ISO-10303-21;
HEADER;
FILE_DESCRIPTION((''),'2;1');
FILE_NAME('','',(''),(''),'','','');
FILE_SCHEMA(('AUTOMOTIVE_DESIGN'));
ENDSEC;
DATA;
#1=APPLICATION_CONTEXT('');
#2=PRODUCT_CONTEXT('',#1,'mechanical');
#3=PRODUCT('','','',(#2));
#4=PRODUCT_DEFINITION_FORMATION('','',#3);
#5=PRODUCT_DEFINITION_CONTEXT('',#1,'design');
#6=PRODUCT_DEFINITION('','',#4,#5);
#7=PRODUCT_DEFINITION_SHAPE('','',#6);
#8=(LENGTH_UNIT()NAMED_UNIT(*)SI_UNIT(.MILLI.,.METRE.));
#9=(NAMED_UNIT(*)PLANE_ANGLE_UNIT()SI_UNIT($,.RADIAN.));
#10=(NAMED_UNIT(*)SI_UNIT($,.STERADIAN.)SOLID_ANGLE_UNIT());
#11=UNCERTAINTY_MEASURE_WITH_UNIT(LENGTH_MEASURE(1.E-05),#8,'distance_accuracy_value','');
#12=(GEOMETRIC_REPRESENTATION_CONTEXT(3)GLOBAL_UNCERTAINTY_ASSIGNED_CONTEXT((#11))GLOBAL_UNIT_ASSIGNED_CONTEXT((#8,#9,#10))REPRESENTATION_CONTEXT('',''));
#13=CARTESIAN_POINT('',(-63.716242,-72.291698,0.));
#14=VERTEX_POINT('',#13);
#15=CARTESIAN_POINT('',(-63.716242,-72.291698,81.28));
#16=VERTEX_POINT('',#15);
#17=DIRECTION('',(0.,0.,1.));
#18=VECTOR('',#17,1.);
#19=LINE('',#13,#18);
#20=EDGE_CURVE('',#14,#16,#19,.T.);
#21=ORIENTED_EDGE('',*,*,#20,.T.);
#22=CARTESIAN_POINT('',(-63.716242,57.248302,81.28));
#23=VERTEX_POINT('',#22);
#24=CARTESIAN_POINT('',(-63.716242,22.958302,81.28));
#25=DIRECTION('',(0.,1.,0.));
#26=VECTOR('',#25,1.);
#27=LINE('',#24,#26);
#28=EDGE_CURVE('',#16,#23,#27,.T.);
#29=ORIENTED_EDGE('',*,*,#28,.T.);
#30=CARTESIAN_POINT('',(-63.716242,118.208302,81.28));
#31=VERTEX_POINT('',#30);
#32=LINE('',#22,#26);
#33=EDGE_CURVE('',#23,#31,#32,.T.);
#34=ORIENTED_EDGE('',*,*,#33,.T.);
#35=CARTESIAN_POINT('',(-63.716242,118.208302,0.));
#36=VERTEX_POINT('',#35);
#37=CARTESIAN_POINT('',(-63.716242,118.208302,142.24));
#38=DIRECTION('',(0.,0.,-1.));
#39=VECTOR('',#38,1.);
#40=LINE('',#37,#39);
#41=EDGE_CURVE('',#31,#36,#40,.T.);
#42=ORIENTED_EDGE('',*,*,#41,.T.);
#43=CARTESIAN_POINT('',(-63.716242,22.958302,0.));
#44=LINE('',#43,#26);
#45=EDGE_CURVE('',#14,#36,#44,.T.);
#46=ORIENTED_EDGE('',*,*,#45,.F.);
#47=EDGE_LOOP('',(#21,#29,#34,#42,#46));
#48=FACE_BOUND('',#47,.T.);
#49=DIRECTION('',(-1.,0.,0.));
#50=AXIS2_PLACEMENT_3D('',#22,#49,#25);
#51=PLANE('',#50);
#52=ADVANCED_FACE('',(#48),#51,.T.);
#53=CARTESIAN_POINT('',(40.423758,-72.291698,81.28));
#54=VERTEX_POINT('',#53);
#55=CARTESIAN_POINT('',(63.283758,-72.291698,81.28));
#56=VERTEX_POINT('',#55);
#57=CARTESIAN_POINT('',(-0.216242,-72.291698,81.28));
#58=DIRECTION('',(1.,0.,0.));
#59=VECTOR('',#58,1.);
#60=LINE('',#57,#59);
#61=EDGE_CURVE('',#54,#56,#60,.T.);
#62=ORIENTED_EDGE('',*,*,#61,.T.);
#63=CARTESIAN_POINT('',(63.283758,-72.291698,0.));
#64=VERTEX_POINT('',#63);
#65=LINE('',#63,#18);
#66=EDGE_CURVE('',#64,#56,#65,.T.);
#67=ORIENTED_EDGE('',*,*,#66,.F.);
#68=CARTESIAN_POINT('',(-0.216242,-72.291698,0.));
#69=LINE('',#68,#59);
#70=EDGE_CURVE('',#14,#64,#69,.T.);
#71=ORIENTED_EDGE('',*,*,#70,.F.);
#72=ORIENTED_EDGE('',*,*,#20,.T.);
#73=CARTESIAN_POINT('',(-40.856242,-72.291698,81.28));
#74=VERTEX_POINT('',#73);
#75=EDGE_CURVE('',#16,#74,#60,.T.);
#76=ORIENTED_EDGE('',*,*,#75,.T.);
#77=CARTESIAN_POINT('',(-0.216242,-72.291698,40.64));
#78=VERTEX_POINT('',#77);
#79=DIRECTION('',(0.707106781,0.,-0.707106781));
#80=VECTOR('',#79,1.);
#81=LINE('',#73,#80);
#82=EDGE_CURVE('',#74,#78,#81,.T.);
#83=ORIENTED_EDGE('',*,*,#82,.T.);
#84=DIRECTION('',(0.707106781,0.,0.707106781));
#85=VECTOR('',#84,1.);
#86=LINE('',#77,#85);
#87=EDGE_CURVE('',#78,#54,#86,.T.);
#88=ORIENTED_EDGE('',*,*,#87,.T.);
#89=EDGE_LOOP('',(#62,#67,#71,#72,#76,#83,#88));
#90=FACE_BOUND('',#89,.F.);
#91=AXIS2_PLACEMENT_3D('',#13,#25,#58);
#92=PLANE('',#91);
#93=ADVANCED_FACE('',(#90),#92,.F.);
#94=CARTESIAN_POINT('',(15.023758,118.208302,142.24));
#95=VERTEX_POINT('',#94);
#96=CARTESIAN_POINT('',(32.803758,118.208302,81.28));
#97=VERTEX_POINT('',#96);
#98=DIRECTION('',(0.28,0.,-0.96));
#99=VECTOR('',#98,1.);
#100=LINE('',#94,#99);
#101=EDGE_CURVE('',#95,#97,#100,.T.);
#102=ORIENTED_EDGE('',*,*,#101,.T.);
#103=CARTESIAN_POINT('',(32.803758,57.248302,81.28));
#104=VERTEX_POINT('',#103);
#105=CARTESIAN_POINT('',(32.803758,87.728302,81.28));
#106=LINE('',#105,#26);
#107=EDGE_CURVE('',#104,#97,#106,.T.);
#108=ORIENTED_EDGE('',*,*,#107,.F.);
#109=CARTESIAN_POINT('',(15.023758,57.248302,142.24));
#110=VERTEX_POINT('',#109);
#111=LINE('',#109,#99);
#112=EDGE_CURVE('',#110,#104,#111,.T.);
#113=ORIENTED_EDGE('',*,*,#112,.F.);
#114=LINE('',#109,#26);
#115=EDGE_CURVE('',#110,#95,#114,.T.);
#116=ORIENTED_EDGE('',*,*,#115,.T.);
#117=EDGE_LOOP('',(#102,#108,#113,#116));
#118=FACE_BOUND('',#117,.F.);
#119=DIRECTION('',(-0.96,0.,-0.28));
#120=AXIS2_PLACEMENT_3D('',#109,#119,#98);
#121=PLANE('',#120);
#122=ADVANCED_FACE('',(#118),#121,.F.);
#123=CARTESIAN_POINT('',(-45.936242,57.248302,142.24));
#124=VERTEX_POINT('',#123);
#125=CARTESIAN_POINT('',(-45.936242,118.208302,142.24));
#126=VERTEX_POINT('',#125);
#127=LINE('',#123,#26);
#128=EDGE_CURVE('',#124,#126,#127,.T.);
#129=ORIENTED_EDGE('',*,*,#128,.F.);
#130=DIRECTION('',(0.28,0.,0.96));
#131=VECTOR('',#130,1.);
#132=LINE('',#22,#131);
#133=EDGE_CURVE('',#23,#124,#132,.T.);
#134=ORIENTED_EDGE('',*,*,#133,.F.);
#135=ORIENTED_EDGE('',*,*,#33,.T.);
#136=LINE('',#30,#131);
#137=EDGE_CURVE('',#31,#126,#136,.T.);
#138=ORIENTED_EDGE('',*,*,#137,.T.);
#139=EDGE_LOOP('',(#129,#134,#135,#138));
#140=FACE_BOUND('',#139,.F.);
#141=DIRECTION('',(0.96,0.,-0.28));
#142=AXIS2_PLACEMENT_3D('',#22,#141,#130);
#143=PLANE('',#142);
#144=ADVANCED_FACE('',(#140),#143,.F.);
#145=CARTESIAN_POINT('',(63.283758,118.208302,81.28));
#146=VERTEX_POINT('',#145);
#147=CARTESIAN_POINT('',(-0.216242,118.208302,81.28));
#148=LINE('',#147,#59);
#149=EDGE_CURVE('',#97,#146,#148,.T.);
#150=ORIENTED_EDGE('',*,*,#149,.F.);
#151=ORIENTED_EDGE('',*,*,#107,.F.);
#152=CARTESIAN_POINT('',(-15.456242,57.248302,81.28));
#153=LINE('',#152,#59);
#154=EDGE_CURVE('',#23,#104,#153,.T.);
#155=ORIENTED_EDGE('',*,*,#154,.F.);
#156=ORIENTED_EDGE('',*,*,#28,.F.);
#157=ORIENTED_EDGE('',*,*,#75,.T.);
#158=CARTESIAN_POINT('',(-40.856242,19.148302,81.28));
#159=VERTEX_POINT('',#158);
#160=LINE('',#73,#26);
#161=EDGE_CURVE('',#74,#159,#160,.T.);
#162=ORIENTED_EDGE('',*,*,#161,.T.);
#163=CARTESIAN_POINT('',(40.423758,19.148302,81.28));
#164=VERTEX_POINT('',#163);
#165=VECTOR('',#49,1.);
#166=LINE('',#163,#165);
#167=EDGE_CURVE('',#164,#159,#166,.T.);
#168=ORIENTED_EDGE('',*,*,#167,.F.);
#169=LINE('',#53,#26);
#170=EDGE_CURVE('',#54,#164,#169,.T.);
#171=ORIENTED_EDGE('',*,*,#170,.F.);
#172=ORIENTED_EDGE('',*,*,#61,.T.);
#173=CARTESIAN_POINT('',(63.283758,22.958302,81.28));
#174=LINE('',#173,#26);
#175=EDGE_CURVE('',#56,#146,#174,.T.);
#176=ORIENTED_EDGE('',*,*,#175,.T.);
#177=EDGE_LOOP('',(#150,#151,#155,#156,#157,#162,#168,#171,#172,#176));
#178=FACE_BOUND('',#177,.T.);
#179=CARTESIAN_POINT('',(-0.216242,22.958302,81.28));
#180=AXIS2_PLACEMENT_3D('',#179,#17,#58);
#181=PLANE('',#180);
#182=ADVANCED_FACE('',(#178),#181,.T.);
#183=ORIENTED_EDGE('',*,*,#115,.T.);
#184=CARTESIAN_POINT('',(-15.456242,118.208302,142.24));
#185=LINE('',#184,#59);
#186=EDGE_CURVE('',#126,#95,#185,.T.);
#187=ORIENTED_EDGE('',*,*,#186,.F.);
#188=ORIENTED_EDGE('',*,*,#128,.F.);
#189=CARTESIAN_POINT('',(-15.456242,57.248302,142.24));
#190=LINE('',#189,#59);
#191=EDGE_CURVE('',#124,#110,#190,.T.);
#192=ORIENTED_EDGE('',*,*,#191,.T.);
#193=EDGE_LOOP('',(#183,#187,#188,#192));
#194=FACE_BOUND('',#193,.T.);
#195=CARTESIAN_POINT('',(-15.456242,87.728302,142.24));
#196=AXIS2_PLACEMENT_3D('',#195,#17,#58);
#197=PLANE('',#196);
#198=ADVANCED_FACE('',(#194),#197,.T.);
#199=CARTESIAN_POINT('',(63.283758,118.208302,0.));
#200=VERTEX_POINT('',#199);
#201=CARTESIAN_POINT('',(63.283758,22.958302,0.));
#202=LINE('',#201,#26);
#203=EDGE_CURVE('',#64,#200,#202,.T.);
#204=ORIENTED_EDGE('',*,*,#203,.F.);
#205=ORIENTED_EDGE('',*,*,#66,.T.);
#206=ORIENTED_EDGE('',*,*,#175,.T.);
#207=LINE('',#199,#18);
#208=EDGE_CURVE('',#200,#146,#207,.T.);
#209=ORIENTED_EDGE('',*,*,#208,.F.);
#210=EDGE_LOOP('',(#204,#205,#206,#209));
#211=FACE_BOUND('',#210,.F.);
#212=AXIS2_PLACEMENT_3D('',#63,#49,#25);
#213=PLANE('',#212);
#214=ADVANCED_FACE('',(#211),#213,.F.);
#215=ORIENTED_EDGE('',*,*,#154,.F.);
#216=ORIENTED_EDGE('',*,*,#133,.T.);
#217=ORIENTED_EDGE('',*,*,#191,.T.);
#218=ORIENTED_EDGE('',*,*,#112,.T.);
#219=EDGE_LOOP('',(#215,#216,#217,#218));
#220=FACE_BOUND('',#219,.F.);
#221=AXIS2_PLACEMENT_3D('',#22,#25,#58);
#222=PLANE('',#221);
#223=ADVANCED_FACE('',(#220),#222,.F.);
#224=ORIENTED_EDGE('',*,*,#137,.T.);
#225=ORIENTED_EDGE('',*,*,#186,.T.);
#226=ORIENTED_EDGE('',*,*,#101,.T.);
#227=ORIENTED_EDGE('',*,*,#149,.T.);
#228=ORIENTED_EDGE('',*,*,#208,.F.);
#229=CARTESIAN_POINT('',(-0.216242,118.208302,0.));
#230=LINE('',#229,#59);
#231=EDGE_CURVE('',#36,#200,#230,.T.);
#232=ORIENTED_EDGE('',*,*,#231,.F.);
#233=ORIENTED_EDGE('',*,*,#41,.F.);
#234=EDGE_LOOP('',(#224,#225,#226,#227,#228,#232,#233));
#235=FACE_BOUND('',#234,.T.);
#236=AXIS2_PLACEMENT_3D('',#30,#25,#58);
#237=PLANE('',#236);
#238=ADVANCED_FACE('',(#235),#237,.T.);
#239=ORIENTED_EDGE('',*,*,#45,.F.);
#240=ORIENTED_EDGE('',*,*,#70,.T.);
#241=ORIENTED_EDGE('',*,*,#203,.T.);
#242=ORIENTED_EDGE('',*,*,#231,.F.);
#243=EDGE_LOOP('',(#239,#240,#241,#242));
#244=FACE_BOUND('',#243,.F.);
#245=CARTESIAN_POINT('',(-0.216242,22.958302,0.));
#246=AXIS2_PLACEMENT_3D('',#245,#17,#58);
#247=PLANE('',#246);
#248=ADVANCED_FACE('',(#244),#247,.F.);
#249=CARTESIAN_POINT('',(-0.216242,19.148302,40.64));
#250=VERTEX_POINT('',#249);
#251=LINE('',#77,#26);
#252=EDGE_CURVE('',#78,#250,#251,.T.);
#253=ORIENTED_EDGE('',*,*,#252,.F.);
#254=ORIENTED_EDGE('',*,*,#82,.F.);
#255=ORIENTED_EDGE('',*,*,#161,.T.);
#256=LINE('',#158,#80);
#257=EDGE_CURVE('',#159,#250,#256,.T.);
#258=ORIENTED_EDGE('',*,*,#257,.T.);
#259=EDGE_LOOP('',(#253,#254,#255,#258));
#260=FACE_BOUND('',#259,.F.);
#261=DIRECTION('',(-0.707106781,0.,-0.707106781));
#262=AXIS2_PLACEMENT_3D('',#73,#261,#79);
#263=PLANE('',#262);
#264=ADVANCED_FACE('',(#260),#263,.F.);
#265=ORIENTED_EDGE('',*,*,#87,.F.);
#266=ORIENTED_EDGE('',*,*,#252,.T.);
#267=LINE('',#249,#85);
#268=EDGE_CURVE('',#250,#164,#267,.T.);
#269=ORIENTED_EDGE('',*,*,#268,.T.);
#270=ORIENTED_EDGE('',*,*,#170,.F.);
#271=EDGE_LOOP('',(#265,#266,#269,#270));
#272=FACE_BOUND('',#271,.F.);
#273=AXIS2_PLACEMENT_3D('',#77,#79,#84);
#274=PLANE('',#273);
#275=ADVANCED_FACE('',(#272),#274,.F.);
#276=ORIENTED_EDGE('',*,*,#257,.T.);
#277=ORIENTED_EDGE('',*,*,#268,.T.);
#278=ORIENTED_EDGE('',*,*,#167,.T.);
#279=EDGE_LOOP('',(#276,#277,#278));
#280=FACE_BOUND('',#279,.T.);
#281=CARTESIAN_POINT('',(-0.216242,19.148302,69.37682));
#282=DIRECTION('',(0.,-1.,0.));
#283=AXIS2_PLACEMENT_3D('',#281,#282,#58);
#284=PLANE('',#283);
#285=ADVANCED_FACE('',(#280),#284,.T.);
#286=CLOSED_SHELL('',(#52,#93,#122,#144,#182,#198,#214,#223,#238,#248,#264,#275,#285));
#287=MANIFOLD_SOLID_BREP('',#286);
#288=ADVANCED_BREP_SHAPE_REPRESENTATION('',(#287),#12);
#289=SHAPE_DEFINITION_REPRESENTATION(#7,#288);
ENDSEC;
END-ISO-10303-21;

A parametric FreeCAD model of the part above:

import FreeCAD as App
import Part
import Sketcher

V = App.Vector
Q = App.Units.Quantity

doc = App.newDocument("Part")
body = doc.addObject("PartDesign::Body", "Body")

# Sketch on XY plane
sketch1 = doc.addObject("Sketcher::SketchObject", "Sketch")
body.addObject(sketch1)
sketch1.AttachmentSupport = (doc.XY_Plane, [""])
sketch1.MapMode = "FlatFace"
sketch1.addGeometry(Part.LineSegment(V(-63.716242, 118.208302, 0), V(-63.716242, -72.291698, 0)), False)
sketch1.addGeometry(Part.LineSegment(V(-63.716242, -72.291698, 0), V(63.283758, -72.291698, 0)), False)
sketch1.addGeometry(Part.LineSegment(V(63.283758, -72.291698, 0), V(63.283758, 118.208302, 0)), False)
sketch1.addGeometry(Part.LineSegment(V(63.283758, 118.208302, 0), V(-63.716242, 118.208302, 0)), False)
sketch1.addConstraint(Sketcher.Constraint("Coincident", 0, 2, 1, 1))
sketch1.addConstraint(Sketcher.Constraint("Coincident", 1, 2, 2, 1))
sketch1.addConstraint(Sketcher.Constraint("Coincident", 2, 2, 3, 1))
sketch1.addConstraint(Sketcher.Constraint("Coincident", 3, 2, 0, 1))
sketch1.addConstraint(Sketcher.Constraint("Vertical", 0))
sketch1.addConstraint(Sketcher.Constraint("Horizontal", 1))
sketch1.addConstraint(Sketcher.Constraint("Vertical", 2))
sketch1.addConstraint(Sketcher.Constraint("Horizontal", 3))
sketch1.addConstraint(Sketcher.Constraint("DistanceX", 1, 1, 1, 2, Q("5 in")))
sketch1.addConstraint(Sketcher.Constraint("DistanceY", 0, 2, 0, 1, Q("7.5 in")))
sketch1.addConstraint(Sketcher.Constraint("DistanceX", 0, 2, -1, 1, Q("63.716242 mm")))
sketch1.addConstraint(Sketcher.Constraint("DistanceY", 0, 2, -1, 1, Q("72.291698 mm")))
pad1 = doc.addObject("PartDesign::Pad", "Pad")
body.addObject(pad1)
pad1.Profile = sketch1
pad1.Length = Q("3.2 in")

# Sketch on XZ plane
sketch2 = doc.addObject("Sketcher::SketchObject", "Sketch001")
body.addObject(sketch2)
sketch2.AttachmentSupport = (doc.XZ_Plane, [""])
sketch2.MapMode = "FlatFace"
sketch2.AttachmentOffset = App.Placement(V(0, 0, 72.291698), App.Rotation())
sketch2.addGeometry(Part.LineSegment(V(40.423758, 81.28, 0), V(-40.856242, 81.28, 0)), False)
sketch2.addGeometry(Part.LineSegment(V(-40.856242, 81.28, 0), V(-0.216242, 40.64, 0)), False)
sketch2.addGeometry(Part.LineSegment(V(-0.216242, 40.64, 0), V(40.423758, 81.28, 0)), False)
sketch2.addConstraint(Sketcher.Constraint("Coincident", 0, 2, 1, 1))
sketch2.addConstraint(Sketcher.Constraint("Coincident", 1, 2, 2, 1))
sketch2.addConstraint(Sketcher.Constraint("Coincident", 2, 2, 0, 1))
sketch2.addConstraint(Sketcher.Constraint("Horizontal", 0))
sketch2.addConstraint(Sketcher.Constraint("Perpendicular", 1, 2))
sketch2.addConstraint(Sketcher.Constraint("Equal", 1, 2))
sketch2.addConstraint(Sketcher.Constraint("DistanceX", 0, 2, 0, 1, Q("3.2 in")))
sketch2.addConstraint(Sketcher.Constraint("DistanceY", -1, 1, 0, 2, Q("3.2 in")))
sketch2.addConstraint(Sketcher.Constraint("DistanceX", 0, 2, -1, 1, Q("40.856242 mm")))
pocket1 = doc.addObject("PartDesign::Pocket", "Pocket")
body.addObject(pocket1)
pocket1.Profile = sketch2
pocket1.Length = Q("3.6 in")

# Sketch on XY plane
sketch3 = doc.addObject("Sketcher::SketchObject", "Sketch002")
body.addObject(sketch3)
sketch3.AttachmentSupport = (doc.XY_Plane, [""])
sketch3.MapMode = "FlatFace"
sketch3.AttachmentOffset = App.Placement(V(0, 0, 3.2 * 25.4), App.Rotation())
sketch3.addGeometry(Part.LineSegment(V(-63.716242, 118.208302, 0), V(-63.716242, 57.248302, 0)), False)
sketch3.addGeometry(Part.LineSegment(V(-63.716242, 57.248302, 0), V(32.803758, 57.248302, 0)), False)
sketch3.addGeometry(Part.LineSegment(V(32.803758, 57.248302, 0), V(32.803758, 118.208302, 0)), False)
sketch3.addGeometry(Part.LineSegment(V(32.803758, 118.208302, 0), V(-63.716242, 118.208302, 0)), False)
sketch3.addConstraint(Sketcher.Constraint("Coincident", 0, 2, 1, 1))
sketch3.addConstraint(Sketcher.Constraint("Coincident", 1, 2, 2, 1))
sketch3.addConstraint(Sketcher.Constraint("Coincident", 2, 2, 3, 1))
sketch3.addConstraint(Sketcher.Constraint("Coincident", 3, 2, 0, 1))
sketch3.addConstraint(Sketcher.Constraint("Vertical", 0))
sketch3.addConstraint(Sketcher.Constraint("Horizontal", 1))
sketch3.addConstraint(Sketcher.Constraint("Vertical", 2))
sketch3.addConstraint(Sketcher.Constraint("Horizontal", 3))
sketch3.addConstraint(Sketcher.Constraint("DistanceX", 1, 1, 1, 2, Q("3.8 in")))
sketch3.addConstraint(Sketcher.Constraint("DistanceY", 0, 2, 0, 1, Q("2.4 in")))
sketch3.addConstraint(Sketcher.Constraint("DistanceX", -1, 1, 1, 2, Q("32.803758 mm")))
sketch3.addConstraint(Sketcher.Constraint("DistanceY", -1, 1, 0, 2, Q("57.248302 mm")))
pad2 = doc.addObject("PartDesign::Pad", "Pad001")
body.addObject(pad2)
pad2.Profile = sketch3
pad2.Length = Q("2.4 in")

# Sketch on XZ plane
sketch4 = doc.addObject("Sketcher::SketchObject", "Sketch003")
body.addObject(sketch4)
sketch4.AttachmentSupport = (doc.XZ_Plane, [""])
sketch4.MapMode = "FlatFace"
sketch4.AttachmentOffset = App.Placement(V(0, 0, -57.248302), App.Rotation())
sketch4.addGeometry(Part.LineSegment(V(-63.716242, 142.24, 0), V(-63.716242, 81.28, 0)), False)
sketch4.addGeometry(Part.LineSegment(V(-63.716242, 81.28, 0), V(-45.936242, 142.24, 0)), False)
sketch4.addGeometry(Part.LineSegment(V(-45.936242, 142.24, 0), V(-63.716242, 142.24, 0)), False)
sketch4.addGeometry(Part.LineSegment(V(15.023758, 142.24, 0), V(32.803758, 81.28, 0)), False)
sketch4.addGeometry(Part.LineSegment(V(32.803758, 81.28, 0), V(32.803758, 142.24, 0)), False)
sketch4.addGeometry(Part.LineSegment(V(32.803758, 142.24, 0), V(15.023758, 142.24, 0)), False)
sketch4.addConstraint(Sketcher.Constraint("Coincident", 0, 2, 1, 1))
sketch4.addConstraint(Sketcher.Constraint("Coincident", 1, 2, 2, 1))
sketch4.addConstraint(Sketcher.Constraint("Coincident", 2, 2, 0, 1))
sketch4.addConstraint(Sketcher.Constraint("Coincident", 3, 2, 4, 1))
sketch4.addConstraint(Sketcher.Constraint("Coincident", 4, 2, 5, 1))
sketch4.addConstraint(Sketcher.Constraint("Coincident", 5, 2, 3, 1))
sketch4.addConstraint(Sketcher.Constraint("Vertical", 0))
sketch4.addConstraint(Sketcher.Constraint("Horizontal", 2))
sketch4.addConstraint(Sketcher.Constraint("Vertical", 4))
sketch4.addConstraint(Sketcher.Constraint("Horizontal", 5))
sketch4.addConstraint(Sketcher.Constraint("Horizontal", 0, 2, 3, 2))
sketch4.addConstraint(Sketcher.Constraint("Horizontal", 2, 2, 4, 2))
sketch4.addConstraint(Sketcher.Constraint("Equal", 2, 5))
sketch4.addConstraint(Sketcher.Constraint("DistanceX", 2, 2, 2, 1, Q("0.7 in")))
sketch4.addConstraint(Sketcher.Constraint("DistanceY", 0, 2, 0, 1, Q("2.4 in")))
sketch4.addConstraint(Sketcher.Constraint("DistanceY", -1, 1, 0, 2, Q("3.2 in")))
sketch4.addConstraint(Sketcher.Constraint("DistanceX", 0, 2, 3, 2, Q("3.8 in")))
sketch4.addConstraint(Sketcher.Constraint("DistanceX", -1, 1, 3, 2, Q("32.803758 mm")))
pocket2 = doc.addObject("PartDesign::Pocket", "Pocket001")
body.addObject(pocket2)
pocket2.Profile = sketch4
pocket2.Length = Q("2.4 in")

doc.recompute()
